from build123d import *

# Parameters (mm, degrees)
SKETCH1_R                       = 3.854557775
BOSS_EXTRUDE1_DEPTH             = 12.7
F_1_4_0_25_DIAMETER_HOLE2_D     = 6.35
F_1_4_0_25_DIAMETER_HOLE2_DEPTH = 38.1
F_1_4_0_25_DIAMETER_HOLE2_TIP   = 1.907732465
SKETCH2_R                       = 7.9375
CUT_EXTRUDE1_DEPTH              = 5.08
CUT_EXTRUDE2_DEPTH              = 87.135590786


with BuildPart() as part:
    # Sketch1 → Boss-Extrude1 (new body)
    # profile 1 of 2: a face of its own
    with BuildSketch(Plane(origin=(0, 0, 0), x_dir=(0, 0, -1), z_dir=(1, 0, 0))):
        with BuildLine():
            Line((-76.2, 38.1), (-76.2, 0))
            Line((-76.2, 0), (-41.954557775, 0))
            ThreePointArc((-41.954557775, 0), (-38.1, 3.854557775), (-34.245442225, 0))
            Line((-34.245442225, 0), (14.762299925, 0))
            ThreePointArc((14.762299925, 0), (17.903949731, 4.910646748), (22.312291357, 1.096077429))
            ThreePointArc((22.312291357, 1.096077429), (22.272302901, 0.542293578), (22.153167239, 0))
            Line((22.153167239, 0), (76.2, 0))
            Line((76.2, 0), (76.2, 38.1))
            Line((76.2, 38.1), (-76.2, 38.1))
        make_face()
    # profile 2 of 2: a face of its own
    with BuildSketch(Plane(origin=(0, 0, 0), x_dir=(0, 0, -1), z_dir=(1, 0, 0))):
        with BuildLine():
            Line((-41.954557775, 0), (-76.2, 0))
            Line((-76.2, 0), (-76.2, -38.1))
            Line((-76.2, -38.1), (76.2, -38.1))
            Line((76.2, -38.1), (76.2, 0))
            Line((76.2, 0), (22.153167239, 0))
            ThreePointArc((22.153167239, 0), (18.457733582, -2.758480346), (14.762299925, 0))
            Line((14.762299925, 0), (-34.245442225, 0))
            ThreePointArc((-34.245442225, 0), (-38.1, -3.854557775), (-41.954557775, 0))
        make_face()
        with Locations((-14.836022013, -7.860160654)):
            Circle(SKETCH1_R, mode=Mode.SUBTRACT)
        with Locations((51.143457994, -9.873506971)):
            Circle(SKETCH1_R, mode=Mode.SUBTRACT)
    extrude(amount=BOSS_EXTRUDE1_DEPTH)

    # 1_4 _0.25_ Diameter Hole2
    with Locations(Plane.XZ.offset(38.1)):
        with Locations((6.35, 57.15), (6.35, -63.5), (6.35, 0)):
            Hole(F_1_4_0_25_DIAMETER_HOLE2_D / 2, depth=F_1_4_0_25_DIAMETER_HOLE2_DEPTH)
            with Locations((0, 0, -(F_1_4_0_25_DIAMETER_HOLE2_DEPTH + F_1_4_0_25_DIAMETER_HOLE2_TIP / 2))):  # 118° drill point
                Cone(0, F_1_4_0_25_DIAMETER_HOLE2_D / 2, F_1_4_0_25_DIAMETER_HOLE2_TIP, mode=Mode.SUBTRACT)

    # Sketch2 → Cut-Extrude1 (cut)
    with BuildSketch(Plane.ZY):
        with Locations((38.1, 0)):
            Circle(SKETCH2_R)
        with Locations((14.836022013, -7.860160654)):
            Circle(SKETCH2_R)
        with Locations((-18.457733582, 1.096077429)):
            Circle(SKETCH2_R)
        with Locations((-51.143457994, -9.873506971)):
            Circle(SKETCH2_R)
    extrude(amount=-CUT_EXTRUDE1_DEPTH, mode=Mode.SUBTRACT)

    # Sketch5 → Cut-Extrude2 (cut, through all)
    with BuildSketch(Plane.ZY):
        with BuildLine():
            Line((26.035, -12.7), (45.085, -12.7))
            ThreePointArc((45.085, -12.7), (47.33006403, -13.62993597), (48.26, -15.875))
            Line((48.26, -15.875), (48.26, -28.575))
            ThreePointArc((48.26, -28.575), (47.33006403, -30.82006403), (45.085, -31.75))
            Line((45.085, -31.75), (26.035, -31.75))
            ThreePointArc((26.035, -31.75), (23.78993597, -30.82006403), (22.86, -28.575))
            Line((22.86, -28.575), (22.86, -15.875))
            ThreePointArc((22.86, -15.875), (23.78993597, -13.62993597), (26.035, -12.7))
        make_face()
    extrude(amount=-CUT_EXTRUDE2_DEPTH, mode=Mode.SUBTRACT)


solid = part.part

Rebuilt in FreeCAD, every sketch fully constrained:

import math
import FreeCAD as App
import Part
import Sketcher

V = App.Vector
Q = App.Units.Quantity

doc = App.newDocument("Part")
body = doc.addObject("PartDesign::Body", "Body")

# Sketch on YZ plane
sketch1 = body.newObject("Sketcher::SketchObject", "Sketch")
sketch1.AttachmentSupport = (doc.getObject("YZ_Plane"), [""])
sketch1.MapMode = "FlatFace"
sketch1.addGeometry(Part.LineSegment(V(38.1, 76.2, 0), V(-38.1, 76.2, 0)), False)
sketch1.addGeometry(Part.LineSegment(V(-38.1, 76.2, 0), V(-38.1, -76.2, 0)), False)
sketch1.addGeometry(Part.LineSegment(V(-38.1, -76.2, 0), V(38.1, -76.2, 0)), False)
sketch1.addGeometry(Part.LineSegment(V(38.1, -76.2, 0), V(38.1, 76.2, 0)), False)
sketch1.addGeometry(Part.Circle(V(0, 38.1, 0), V(0, 0, 1), 3.9), False)
sketch1.addGeometry(Part.ArcOfCircle(Part.Circle(V(1.1, -18.5, 0), V(0, 0, 1), 3.9), math.radians(-90), math.radians(107)), False)
sketch1.addGeometry(Part.ArcOfCircle(Part.Circle(V(1.1, -18.5, 0), V(0, 0, 1), 3.9), math.radians(-106.52), math.radians(-90)), False)
sketch1.addGeometry(Part.ArcOfCircle(Part.Circle(V(1.1, -18.5, 0), V(0, 0, 1), 3.9), math.radians(107), math.radians(253)), False)
sketch1.addGeometry(Part.Circle(V(-7.9, 14.8, 0), V(0, 0, 1), 3.9), False)
sketch1.addGeometry(Part.Circle(V(-9.9, -51.1, 0), V(0, 0, 1), 3.9), False)
sketch1.addConstraint(Sketcher.Constraint("Coincident", 0, 2, 1, 1))
sketch1.addConstraint(Sketcher.Constraint("Coincident", 1, 2, 2, 1))
sketch1.addConstraint(Sketcher.Constraint("Coincident", 2, 2, 3, 1))
sketch1.addConstraint(Sketcher.Constraint("Coincident", 3, 2, 0, 1))
sketch1.addConstraint(Sketcher.Constraint("Tangent", 5, 1, 6, 2))
sketch1.addConstraint(Sketcher.Constraint("Tangent", 6, 1, 7, 2))
sketch1.addConstraint(Sketcher.Constraint("Tangent", 7, 1, 5, 2))
sketch1.addConstraint(Sketcher.Constraint("Horizontal", 0))
sketch1.addConstraint(Sketcher.Constraint("Vertical", 1))
sketch1.addConstraint(Sketcher.Constraint("Horizontal", 2))
sketch1.addConstraint(Sketcher.Constraint("Vertical", 3))
sketch1.addConstraint(Sketcher.Constraint("Equal", 4, 5))
sketch1.addConstraint(Sketcher.Constraint("Equal", 7, 8))
sketch1.addConstraint(Sketcher.Constraint("Equal", 8, 9))
sketch1.addConstraint(Sketcher.Constraint("Symmetric", 0, 2, 2, 2, -1, 1))
sketch1.addConstraint(Sketcher.Constraint("PointOnObject", 4, 3, -2))
sketch1.addConstraint(Sketcher.Constraint("PointOnObject", 6, 1, -2))
sketch1.addConstraint(Sketcher.Constraint("PointOnObject", 7, 1, -2))
sketch1.addConstraint(Sketcher.Constraint("Vertical", 7, 3, 5, 1))
sketch1.addConstraint(Sketcher.Constraint("DistanceX", 0, 2, 0, 1, Q("3 in")))
sketch1.addConstraint(Sketcher.Constraint("DistanceY", 1, 2, 1, 1, Q("6 in")))
sketch1.addConstraint(Sketcher.Constraint("DistanceY", -1, 1, 4, 3, Q("1.5 in")))
sketch1.addConstraint(Sketcher.Constraint("Diameter", 4, Q("7.709116 mm")))
sketch1.addConstraint(Sketcher.Constraint("DistanceY", 7, 1, -1, 1, Q("14.7623 mm")))
sketch1.addConstraint(Sketcher.Constraint("DistanceX", 8, 3, -1, 1, Q("7.860161 mm")))
sketch1.addConstraint(Sketcher.Constraint("DistanceY", 5, 1, -1, 1, Q("22.312291 mm")))
sketch1.addConstraint(Sketcher.Constraint("DistanceY", 9, 3, 8, 3, Q("65.97948 mm")))
sketch1.addConstraint(Sketcher.Constraint("DistanceY", 9, 3, 6, 1, Q("28.990291 mm")))
sketch1.addConstraint(Sketcher.Constraint("DistanceX", 9, 3, -1, 1, Q("9.873507 mm")))
pad1 = body.newObject("PartDesign::Pad", "Pad")
pad1.Profile = sketch1
pad1.Length = Q("0.5 in")

# Sketch on XZ plane
sketch2 = body.newObject("Sketcher::SketchObject", "Sketch001")
sketch2.AttachmentSupport = (doc.getObject("XZ_Plane"), [""])
sketch2.MapMode = "FlatFace"
sketch2.AttachmentOffset = App.Placement(V(0, 0, 1.5 * 25.4), App.Rotation())
sketch2.addGeometry(Part.Circle(V(6.3, 57.1, 0), V(0, 0, 1), 3.2), False)
sketch2.addGeometry(Part.Circle(V(6.3, -63.5, 0), V(0, 0, 1), 3.2), False)
sketch2.addGeometry(Part.Circle(V(6.3, 0, 0), V(0, 0, 1), 3.2), False)
sketch2.addConstraint(Sketcher.Constraint("Equal", 0, 1))
sketch2.addConstraint(Sketcher.Constraint("Equal", 1, 2))
sketch2.addConstraint(Sketcher.Constraint("PointOnObject", 2, 3, -1))
sketch2.addConstraint(Sketcher.Constraint("Vertical", 0, 3, 1, 3))
sketch2.addConstraint(Sketcher.Constraint("Vertical", 1, 3, 2, 3))
sketch2.addConstraint(Sketcher.Constraint("Diameter", 0, Q("0.25 in")))
sketch2.addConstraint(Sketcher.Constraint("DistanceY", 1, 3, -1, 1, Q("2.5 in")))
sketch2.addConstraint(Sketcher.Constraint("DistanceX", -1, 1, 0, 3, Q("0.25 in")))
sketch2.addConstraint(Sketcher.Constraint("DistanceY", -1, 1, 0, 3, Q("2.25 in")))
doc.recompute()
hole = body.newObject("PartDesign::Hole", "Hole")
hole.Profile = sketch2
hole.ThreadType = "None"
hole.Diameter = Q("0.25 in")
hole.DepthType = "Dimension"
hole.Depth = Q("1.5 in")
hole.DrillPoint = "Angled"
hole.DrillPointAngle = 118

# Sketch on YZ plane
sketch3 = body.newObject("Sketcher::SketchObject", "Sketch002")
sketch3.AttachmentSupport = (doc.getObject("YZ_Plane"), [""])
sketch3.MapMode = "FlatFace"
sketch3.addGeometry(Part.Circle(V(0, 38, 0), V(0, 0, 1), 8), False)
sketch3.addGeometry(Part.Circle(V(-8, 15, 0), V(0, 0, 1), 8), False)
sketch3.addGeometry(Part.Circle(V(1, -18, 0), V(0, 0, 1), 8), False)
sketch3.addGeometry(Part.Circle(V(-10, -51, 0), V(0, 0, 1), 8), False)
sketch3.addConstraint(Sketcher.Constraint("Equal", 0, 1))
sketch3.addConstraint(Sketcher.Constraint("Equal", 1, 2))
sketch3.addConstraint(Sketcher.Constraint("Equal", 2, 3))
sketch3.addConstraint(Sketcher.Constraint("PointOnObject", 0, 3, -2))
sketch3.addConstraint(Sketcher.Constraint("Diameter", 0, Q("0.625 in")))
sketch3.addConstraint(Sketcher.Constraint("DistanceY", -1, 1, 0, 3, Q("1.5 in")))
sketch3.addConstraint(Sketcher.Constraint("DistanceX", 1, 3, -1, 1, Q("7.860161 mm")))
sketch3.addConstraint(Sketcher.Constraint("DistanceX", 1, 3, 2, 3, Q("8.956238 mm")))
sketch3.addConstraint(Sketcher.Constraint("DistanceY", 3, 3, 1, 3, Q("65.97948 mm")))
sketch3.addConstraint(Sketcher.Constraint("DistanceY", -1, 1, 1, 3, Q("14.836022 mm")))
sketch3.addConstraint(Sketcher.Constraint("DistanceY", 2, 3, -1, 1, Q("18.457734 mm")))
sketch3.addConstraint(Sketcher.Constraint("DistanceX", 3, 3, -1, 1, Q("9.873507 mm")))
pocket1 = body.newObject("PartDesign::Pocket", "Pocket")
pocket1.Profile = sketch3
pocket1.Length = Q("0.2 in")
pocket1.Reversed = True

# Sketch on YZ plane
sketch4 = body.newObject("Sketcher::SketchObject", "Sketch003")
sketch4.AttachmentSupport = (doc.getObject("YZ_Plane"), [""])
sketch4.MapMode = "FlatFace"
sketch4.addGeometry(Part.LineSegment(V(-12.7, 45.1, 0), V(-12.7, 26, 0)), False)
sketch4.addGeometry(Part.ArcOfCircle(Part.Circle(V(-15.9, 26, 0), V(0, 0, 1), 3.2), math.radians(-90), math.radians(0)), False)
sketch4.addGeometry(Part.LineSegment(V(-15.9, 22.9, 0), V(-28.6, 22.9, 0)), False)
sketch4.addGeometry(Part.ArcOfCircle(Part.Circle(V(-28.6, 26, 0), V(0, 0, 1), 3.2), math.radians(-180), math.radians(-90)), False)
sketch4.addGeometry(Part.LineSegment(V(-31.8, 26, 0), V(-31.8, 45.1, 0)), False)
sketch4.addGeometry(Part.ArcOfCircle(Part.Circle(V(-28.6, 45.1, 0), V(0, 0, 1), 3.2), math.radians(90), math.radians(180)), False)
sketch4.addGeometry(Part.LineSegment(V(-28.6, 48.3, 0), V(-15.9, 48.3, 0)), False)
sketch4.addGeometry(Part.ArcOfCircle(Part.Circle(V(-15.9, 45.1, 0), V(0, 0, 1), 3.2), math.radians(0), math.radians(90)), False)
sketch4.addConstraint(Sketcher.Constraint("Tangent", 0, 2, 1, 2))
sketch4.addConstraint(Sketcher.Constraint("Tangent", 1, 1, 2, 1))
sketch4.addConstraint(Sketcher.Constraint("Tangent", 2, 2, 3, 2))
sketch4.addConstraint(Sketcher.Constraint("Tangent", 3, 1, 4, 1))
sketch4.addConstraint(Sketcher.Constraint("Tangent", 4, 2, 5, 2))
sketch4.addConstraint(Sketcher.Constraint("Tangent", 5, 1, 6, 1))
sketch4.addConstraint(Sketcher.Constraint("Tangent", 6, 2, 7, 2))
sketch4.addConstraint(Sketcher.Constraint("Tangent", 7, 1, 0, 1))
sketch4.addConstraint(Sketcher.Constraint("Vertical", 0))
sketch4.addConstraint(Sketcher.Constraint("Horizontal", 2))
sketch4.addConstraint(Sketcher.Constraint("Vertical", 4))
sketch4.addConstraint(Sketcher.Constraint("Horizontal", 6))
sketch4.addConstraint(Sketcher.Constraint("Equal", 1, 3))
sketch4.addConstraint(Sketcher.Constraint("Equal", 3, 5))
sketch4.addConstraint(Sketcher.Constraint("Equal", 5, 7))
sketch4.addConstraint(Sketcher.Constraint("DistanceX", 2, 2, 2, 1, Q("0.5 in")))
sketch4.addConstraint(Sketcher.Constraint("Radius", 1, Q("0.125 in")))
sketch4.addConstraint(Sketcher.Constraint("DistanceY", 0, 2, 0, 1, Q("0.75 in")))
sketch4.addConstraint(Sketcher.Constraint("DistanceX", 0, 2, -1, 1, Q("0.5 in")))
sketch4.addConstraint(Sketcher.Constraint("DistanceY", -1, 1, 1, 1, Q("0.9 in")))
pocket2 = body.newObject("PartDesign::Pocket", "Pocket001")
pocket2.Profile = sketch4
pocket2.Type = "ThroughAll"
pocket2.Reversed = True

doc.recompute()
